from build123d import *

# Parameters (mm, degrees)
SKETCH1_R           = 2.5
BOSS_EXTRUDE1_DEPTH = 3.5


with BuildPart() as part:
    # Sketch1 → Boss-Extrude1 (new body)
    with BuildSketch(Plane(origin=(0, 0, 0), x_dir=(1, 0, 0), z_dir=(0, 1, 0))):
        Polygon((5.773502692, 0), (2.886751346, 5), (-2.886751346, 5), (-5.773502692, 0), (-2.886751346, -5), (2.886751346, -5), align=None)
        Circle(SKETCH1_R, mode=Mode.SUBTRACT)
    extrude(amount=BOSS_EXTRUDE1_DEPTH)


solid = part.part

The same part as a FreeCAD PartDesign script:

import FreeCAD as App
import Part
import Sketcher

V = App.Vector
Q = App.Units.Quantity

doc = App.newDocument("Part")
body = doc.addObject("PartDesign::Body", "Body")

sketch1 = doc.addObject("Sketcher::SketchObject", "Sketch")
body.addObject(sketch1)
sketch1.AttachmentSupport = (doc.XZ_Plane, [""])
sketch1.MapMode = "FlatFace"
sketch1.addGeometry(Part.LineSegment(V(5.8, 0, 0), V(2.9, -5, 0)), False)
sketch1.addGeometry(Part.LineSegment(V(2.9, -5, 0), V(-2.9, -5, 0)), False)
sketch1.addGeometry(Part.LineSegment(V(-2.9, -5, 0), V(-5.8, 0, 0)), False)
sketch1.addGeometry(Part.LineSegment(V(-5.8, 0, 0), V(-2.9, 5, 0)), False)
sketch1.addGeometry(Part.LineSegment(V(-2.9, 5, 0), V(2.9, 5, 0)), False)
sketch1.addGeometry(Part.LineSegment(V(2.9, 5, 0), V(5.8, 0, 0)), False)
sketch1.addGeometry(Part.Circle(V(0, 0, 0), V(0, 0, 1), 2.5), False)
sketch1.addConstraint(Sketcher.Constraint("Coincident", 0, 2, 1, 1))
sketch1.addConstraint(Sketcher.Constraint("Coincident", 1, 2, 2, 1))
sketch1.addConstraint(Sketcher.Constraint("Coincident", 2, 2, 3, 1))
sketch1.addConstraint(Sketcher.Constraint("Coincident", 3, 2, 4, 1))
sketch1.addConstraint(Sketcher.Constraint("Coincident", 4, 2, 5, 1))
sketch1.addConstraint(Sketcher.Constraint("Coincident", 5, 2, 0, 1))
sketch1.addConstraint(Sketcher.Constraint("Horizontal", 1))
sketch1.addConstraint(Sketcher.Constraint("Horizontal", 4))
sketch1.addConstraint(Sketcher.Constraint("Coincident", 6, 3, -1, 1))
sketch1.addConstraint(Sketcher.Constraint("Symmetric", 0, 2, 3, 2, -1, 1))
sketch1.addConstraint(Sketcher.Constraint("Symmetric", 2, 2, 5, 2, -1, 1))
sketch1.addConstraint(Sketcher.Constraint("PointOnObject", 2, 2, -1))
sketch1.addConstraint(Sketcher.Constraint("Parallel", 2, 5))
sketch1.addConstraint(Sketcher.Constraint("Vertical", 1, 2, 3, 2))
sketch1.addConstraint(Sketcher.Constraint("Diameter", 6, 5.0))
sketch1.addConstraint(Sketcher.Constraint("Angle", 0, Q("-120 deg")))
sketch1.addConstraint(Sketcher.Constraint("DistanceY", 0, 2, -1, 1, 5.0))
sketch1.addConstraint(Sketcher.Constraint("DistanceX", 1, 2, 1, 1, 5.773503))
pad1 = doc.addObject("PartDesign::Pad", "Pad")
body.addObject(pad1)
pad1.Profile = sketch1
pad1.Length = 3.5
pad1.Reversed = True

doc.recompute()
